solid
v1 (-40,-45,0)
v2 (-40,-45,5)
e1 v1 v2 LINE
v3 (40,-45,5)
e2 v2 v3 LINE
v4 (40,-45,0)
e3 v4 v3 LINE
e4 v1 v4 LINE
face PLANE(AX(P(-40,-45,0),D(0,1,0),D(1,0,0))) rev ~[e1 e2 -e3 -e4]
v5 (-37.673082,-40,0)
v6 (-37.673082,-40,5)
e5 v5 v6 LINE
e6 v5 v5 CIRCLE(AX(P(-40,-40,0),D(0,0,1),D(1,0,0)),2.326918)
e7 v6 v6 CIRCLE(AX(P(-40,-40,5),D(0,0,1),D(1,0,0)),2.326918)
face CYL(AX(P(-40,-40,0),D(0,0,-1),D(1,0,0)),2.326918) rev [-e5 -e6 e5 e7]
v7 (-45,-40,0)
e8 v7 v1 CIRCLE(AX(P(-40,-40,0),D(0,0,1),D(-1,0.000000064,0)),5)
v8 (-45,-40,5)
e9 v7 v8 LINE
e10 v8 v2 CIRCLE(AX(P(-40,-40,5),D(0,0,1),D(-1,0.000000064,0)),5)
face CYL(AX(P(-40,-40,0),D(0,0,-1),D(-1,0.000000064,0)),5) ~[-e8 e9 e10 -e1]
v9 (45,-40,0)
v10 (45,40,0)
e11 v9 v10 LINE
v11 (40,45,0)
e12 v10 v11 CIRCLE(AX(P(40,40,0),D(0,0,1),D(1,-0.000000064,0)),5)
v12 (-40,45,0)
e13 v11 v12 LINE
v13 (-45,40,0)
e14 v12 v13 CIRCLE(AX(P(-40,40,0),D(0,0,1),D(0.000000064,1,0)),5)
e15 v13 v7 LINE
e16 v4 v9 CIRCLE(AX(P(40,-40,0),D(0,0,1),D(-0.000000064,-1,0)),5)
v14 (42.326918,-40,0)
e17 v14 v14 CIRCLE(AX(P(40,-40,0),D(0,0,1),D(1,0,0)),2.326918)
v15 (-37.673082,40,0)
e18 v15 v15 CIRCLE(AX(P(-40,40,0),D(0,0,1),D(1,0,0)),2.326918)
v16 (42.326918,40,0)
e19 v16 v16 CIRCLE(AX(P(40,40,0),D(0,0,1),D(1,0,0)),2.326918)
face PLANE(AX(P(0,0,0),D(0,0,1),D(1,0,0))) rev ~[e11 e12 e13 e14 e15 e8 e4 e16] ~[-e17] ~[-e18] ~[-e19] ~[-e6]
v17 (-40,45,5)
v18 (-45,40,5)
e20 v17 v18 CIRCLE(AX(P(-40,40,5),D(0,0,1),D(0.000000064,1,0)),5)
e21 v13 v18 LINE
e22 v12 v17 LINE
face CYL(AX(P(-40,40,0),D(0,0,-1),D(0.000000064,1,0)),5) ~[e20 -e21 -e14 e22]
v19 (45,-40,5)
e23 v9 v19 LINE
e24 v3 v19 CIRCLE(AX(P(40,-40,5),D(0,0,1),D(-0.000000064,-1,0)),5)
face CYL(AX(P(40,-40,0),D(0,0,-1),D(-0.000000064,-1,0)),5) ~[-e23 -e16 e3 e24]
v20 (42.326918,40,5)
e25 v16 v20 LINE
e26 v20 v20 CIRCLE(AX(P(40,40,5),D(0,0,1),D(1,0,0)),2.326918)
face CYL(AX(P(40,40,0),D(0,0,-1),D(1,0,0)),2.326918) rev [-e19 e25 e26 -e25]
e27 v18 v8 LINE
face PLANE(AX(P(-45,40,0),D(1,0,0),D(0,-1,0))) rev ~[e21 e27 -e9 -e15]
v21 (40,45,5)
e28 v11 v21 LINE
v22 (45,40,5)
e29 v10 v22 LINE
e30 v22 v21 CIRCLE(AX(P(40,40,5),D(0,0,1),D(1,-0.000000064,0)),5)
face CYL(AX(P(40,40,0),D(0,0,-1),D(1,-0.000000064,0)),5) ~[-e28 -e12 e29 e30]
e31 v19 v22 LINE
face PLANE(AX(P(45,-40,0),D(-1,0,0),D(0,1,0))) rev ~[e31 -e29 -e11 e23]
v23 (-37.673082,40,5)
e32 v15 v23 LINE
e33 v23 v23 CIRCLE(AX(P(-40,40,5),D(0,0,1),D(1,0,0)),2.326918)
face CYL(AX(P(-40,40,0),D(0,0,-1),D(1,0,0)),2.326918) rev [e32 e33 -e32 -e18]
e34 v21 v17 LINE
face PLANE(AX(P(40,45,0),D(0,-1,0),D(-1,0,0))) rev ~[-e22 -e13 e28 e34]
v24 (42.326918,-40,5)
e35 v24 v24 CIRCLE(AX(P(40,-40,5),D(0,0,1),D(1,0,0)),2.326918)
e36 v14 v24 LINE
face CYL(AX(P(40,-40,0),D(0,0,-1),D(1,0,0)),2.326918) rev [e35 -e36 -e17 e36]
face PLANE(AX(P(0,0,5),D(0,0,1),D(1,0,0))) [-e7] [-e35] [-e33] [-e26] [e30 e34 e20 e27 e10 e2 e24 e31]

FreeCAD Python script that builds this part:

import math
import FreeCAD as App
import Part
import Sketcher
Q = App.Units.Quantity

doc = App.newDocument("Part")
body = doc.addObject("PartDesign::Body", "Body")

# Sketch on XY plane
sketch1 = body.newObject("Sketcher::SketchObject", "Sketch")
sketch1.AttachmentSupport = (doc.getObject("XY_Plane"), [""])
sketch1.MapMode = "FlatFace"
sketch1.addGeometry(Part.LineSegment(App.Vector(40, 45, 0), App.Vector(-40, 45, 0)), False)
sketch1.addGeometry(Part.ArcOfCircle(Part.Circle(App.Vector(-40, 40, 0), App.Vector(0, 0, 1), 5), math.radians(90), math.radians(180)), False)
sketch1.addGeometry(Part.LineSegment(App.Vector(-45, 40, 0), App.Vector(-45, -40, 0)), False)
sketch1.addGeometry(Part.ArcOfCircle(Part.Circle(App.Vector(-40, -40, 0), App.Vector(0, 0, 1), 5), math.radians(180), math.radians(270)), False)
sketch1.addGeometry(Part.LineSegment(App.Vector(-40, -45, 0), App.Vector(40, -45, 0)), False)
sketch1.addGeometry(Part.ArcOfCircle(Part.Circle(App.Vector(40, -40, 0), App.Vector(0, 0, 1), 5), math.radians(-90), math.radians(0)), False)
sketch1.addGeometry(Part.LineSegment(App.Vector(45, -40, 0), App.Vector(45, 40, 0)), False)
sketch1.addGeometry(Part.ArcOfCircle(Part.Circle(App.Vector(40, 40, 0), App.Vector(0, 0, 1), 5), math.radians(0), math.radians(90)), False)
sketch1.addGeometry(Part.Circle(App.Vector(-40, -40, 0), App.Vector(0, 0, 1), 2.3), False)
sketch1.addGeometry(Part.Circle(App.Vector(40, -40, 0), App.Vector(0, 0, 1), 2.3), False)
sketch1.addGeometry(Part.Circle(App.Vector(-40, 40, 0), App.Vector(0, 0, 1), 2.3), False)
sketch1.addGeometry(Part.Circle(App.Vector(40, 40, 0), App.Vector(0, 0, 1), 2.3), False)
sketch1.addConstraint(Sketcher.Constraint("Tangent", 0, 2, 1, 1))
sketch1.addConstraint(Sketcher.Constraint("Tangent", 1, 2, 2, 1))
sketch1.addConstraint(Sketcher.Constraint("Tangent", 2, 2, 3, 1))
sketch1.addConstraint(Sketcher.Constraint("Tangent", 3, 2, 4, 1))
sketch1.addConstraint(Sketcher.Constraint("Tangent", 4, 2, 5, 1))
sketch1.addConstraint(Sketcher.Constraint("Tangent", 5, 2, 6, 1))
sketch1.addConstraint(Sketcher.Constraint("Tangent", 6, 2, 7, 1))
sketch1.addConstraint(Sketcher.Constraint("Tangent", 7, 2, 0, 1))
sketch1.addConstraint(Sketcher.Constraint("Horizontal", 0))
sketch1.addConstraint(Sketcher.Constraint("Vertical", 2))
sketch1.addConstraint(Sketcher.Constraint("Horizontal", 4))
sketch1.addConstraint(Sketcher.Constraint("Vertical", 6))
sketch1.addConstraint(Sketcher.Constraint("Coincident", 8, 3, 3, 3))
sketch1.addConstraint(Sketcher.Constraint("Coincident", 9, 3, 5, 3))
sketch1.addConstraint(Sketcher.Constraint("Coincident", 10, 3, 1, 3))
sketch1.addConstraint(Sketcher.Constraint("Coincident", 11, 3, 7, 3))
sketch1.addConstraint(Sketcher.Constraint("Equal", 1, 3))
sketch1.addConstraint(Sketcher.Constraint("Equal", 3, 5))
sketch1.addConstraint(Sketcher.Constraint("Equal", 5, 7))
sketch1.addConstraint(Sketcher.Constraint("Equal", 8, 9))
sketch1.addConstraint(Sketcher.Constraint("Equal", 9, 10))
sketch1.addConstraint(Sketcher.Constraint("Equal", 10, 11))
sketch1.addConstraint(Sketcher.Constraint("Symmetric", 1, 3, 5, 3, -1, 1))
sketch1.addConstraint(Sketcher.Constraint("Equal", 4, 2))
sketch1.addConstraint(Sketcher.Constraint("Radius", 1, Q("5 mm")))
sketch1.addConstraint(Sketcher.Constraint("DistanceX", 0, 2, 0, 1, Q("80 mm")))
sketch1.addConstraint(Sketcher.Constraint("Diameter", 8, Q("4.653836 mm")))
pad1 = body.newObject("PartDesign::Pad", "Pad")
pad1.Profile = sketch1
pad1.Length = 5

doc.recompute()
